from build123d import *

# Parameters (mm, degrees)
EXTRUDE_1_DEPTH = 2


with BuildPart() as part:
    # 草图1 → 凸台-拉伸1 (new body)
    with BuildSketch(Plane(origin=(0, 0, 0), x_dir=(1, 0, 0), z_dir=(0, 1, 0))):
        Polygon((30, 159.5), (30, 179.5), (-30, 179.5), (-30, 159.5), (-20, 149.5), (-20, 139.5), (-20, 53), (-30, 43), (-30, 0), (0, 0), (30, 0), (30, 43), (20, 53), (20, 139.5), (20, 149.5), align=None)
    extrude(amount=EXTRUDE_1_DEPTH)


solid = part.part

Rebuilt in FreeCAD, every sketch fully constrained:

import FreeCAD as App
import Part
import Sketcher
Q = App.Units.Quantity


def add_polygon(sketch, points):
    """Adds a closed chain of lines whose ends are joined by coincident constraints."""
    first, n = sketch.GeometryCount, len(points)
    for a, b in zip(points, points[1:] + points[:1]):
        sketch.addGeometry(Part.LineSegment(App.Vector(*a, 0), App.Vector(*b, 0)), False)
    for i in range(n):
        sketch.addConstraint(Sketcher.Constraint("Coincident", first + i, 2, first + (i + 1) % n, 1))

doc = App.newDocument("Part")
body = doc.addObject("PartDesign::Body", "Body")

# Sketch on XZ plane
sketch1 = body.newObject("Sketcher::SketchObject", "Sketch")
sketch1.AttachmentSupport = (doc.getObject("XZ_Plane"), [""])
sketch1.MapMode = "FlatFace"
add_polygon(sketch1, [(30, -159.5), (30, -179.5), (-30, -179.5), (-30, -159.5), (-20, -149.5), (-20, -53), (-30, -43), (-30, 0), (30, 0), (30, -43), (20, -53), (20, -149.5)])  # lines 0-11
sketch1.addConstraint(Sketcher.Constraint("Vertical", 0))
sketch1.addConstraint(Sketcher.Constraint("Horizontal", 1))
sketch1.addConstraint(Sketcher.Constraint("Vertical", 2))
sketch1.addConstraint(Sketcher.Constraint("Vertical", 4))
sketch1.addConstraint(Sketcher.Constraint("Vertical", 6))
sketch1.addConstraint(Sketcher.Constraint("Horizontal", 7))
sketch1.addConstraint(Sketcher.Constraint("Vertical", 8))
sketch1.addConstraint(Sketcher.Constraint("Vertical", 10))
sketch1.addConstraint(Sketcher.Constraint("Symmetric", 6, 2, 7, 2, -1, 1))
sketch1.addConstraint(Sketcher.Constraint("Symmetric", 4, 2, 9, 2, -2))
sketch1.addConstraint(Sketcher.Constraint("Symmetric", 2, 2, 11, 2, -2))
sketch1.addConstraint(Sketcher.Constraint("Perpendicular", 3, 5))
sketch1.addConstraint(Sketcher.Constraint("Perpendicular", 5, 9))
sketch1.addConstraint(Sketcher.Constraint("Perpendicular", 9, 11))
sketch1.addConstraint(Sketcher.Constraint("Horizontal", 5, 2, 8, 2))
sketch1.addConstraint(Sketcher.Constraint("Vertical", 2, 2, 5, 2))
sketch1.addConstraint(Sketcher.Constraint("DistanceX", 1, 2, 1, 1, Q("60 mm")))
sketch1.addConstraint(Sketcher.Constraint("DistanceY", 0, 2, 0, 1, Q("20 mm")))
sketch1.addConstraint(Sketcher.Constraint("DistanceY", 6, 1, 6, 2, Q("43 mm")))
sketch1.addConstraint(Sketcher.Constraint("DistanceY", 4, 1, 4, 2, Q("96.5 mm")))
sketch1.addConstraint(Sketcher.Constraint("DistanceX", 3, 2, -1, 1, Q("20 mm")))
pad1 = body.newObject("PartDesign::Pad", "Pad")
pad1.Profile = sketch1
pad1.Length = 2
pad1.Reversed = True

doc.recompute()
